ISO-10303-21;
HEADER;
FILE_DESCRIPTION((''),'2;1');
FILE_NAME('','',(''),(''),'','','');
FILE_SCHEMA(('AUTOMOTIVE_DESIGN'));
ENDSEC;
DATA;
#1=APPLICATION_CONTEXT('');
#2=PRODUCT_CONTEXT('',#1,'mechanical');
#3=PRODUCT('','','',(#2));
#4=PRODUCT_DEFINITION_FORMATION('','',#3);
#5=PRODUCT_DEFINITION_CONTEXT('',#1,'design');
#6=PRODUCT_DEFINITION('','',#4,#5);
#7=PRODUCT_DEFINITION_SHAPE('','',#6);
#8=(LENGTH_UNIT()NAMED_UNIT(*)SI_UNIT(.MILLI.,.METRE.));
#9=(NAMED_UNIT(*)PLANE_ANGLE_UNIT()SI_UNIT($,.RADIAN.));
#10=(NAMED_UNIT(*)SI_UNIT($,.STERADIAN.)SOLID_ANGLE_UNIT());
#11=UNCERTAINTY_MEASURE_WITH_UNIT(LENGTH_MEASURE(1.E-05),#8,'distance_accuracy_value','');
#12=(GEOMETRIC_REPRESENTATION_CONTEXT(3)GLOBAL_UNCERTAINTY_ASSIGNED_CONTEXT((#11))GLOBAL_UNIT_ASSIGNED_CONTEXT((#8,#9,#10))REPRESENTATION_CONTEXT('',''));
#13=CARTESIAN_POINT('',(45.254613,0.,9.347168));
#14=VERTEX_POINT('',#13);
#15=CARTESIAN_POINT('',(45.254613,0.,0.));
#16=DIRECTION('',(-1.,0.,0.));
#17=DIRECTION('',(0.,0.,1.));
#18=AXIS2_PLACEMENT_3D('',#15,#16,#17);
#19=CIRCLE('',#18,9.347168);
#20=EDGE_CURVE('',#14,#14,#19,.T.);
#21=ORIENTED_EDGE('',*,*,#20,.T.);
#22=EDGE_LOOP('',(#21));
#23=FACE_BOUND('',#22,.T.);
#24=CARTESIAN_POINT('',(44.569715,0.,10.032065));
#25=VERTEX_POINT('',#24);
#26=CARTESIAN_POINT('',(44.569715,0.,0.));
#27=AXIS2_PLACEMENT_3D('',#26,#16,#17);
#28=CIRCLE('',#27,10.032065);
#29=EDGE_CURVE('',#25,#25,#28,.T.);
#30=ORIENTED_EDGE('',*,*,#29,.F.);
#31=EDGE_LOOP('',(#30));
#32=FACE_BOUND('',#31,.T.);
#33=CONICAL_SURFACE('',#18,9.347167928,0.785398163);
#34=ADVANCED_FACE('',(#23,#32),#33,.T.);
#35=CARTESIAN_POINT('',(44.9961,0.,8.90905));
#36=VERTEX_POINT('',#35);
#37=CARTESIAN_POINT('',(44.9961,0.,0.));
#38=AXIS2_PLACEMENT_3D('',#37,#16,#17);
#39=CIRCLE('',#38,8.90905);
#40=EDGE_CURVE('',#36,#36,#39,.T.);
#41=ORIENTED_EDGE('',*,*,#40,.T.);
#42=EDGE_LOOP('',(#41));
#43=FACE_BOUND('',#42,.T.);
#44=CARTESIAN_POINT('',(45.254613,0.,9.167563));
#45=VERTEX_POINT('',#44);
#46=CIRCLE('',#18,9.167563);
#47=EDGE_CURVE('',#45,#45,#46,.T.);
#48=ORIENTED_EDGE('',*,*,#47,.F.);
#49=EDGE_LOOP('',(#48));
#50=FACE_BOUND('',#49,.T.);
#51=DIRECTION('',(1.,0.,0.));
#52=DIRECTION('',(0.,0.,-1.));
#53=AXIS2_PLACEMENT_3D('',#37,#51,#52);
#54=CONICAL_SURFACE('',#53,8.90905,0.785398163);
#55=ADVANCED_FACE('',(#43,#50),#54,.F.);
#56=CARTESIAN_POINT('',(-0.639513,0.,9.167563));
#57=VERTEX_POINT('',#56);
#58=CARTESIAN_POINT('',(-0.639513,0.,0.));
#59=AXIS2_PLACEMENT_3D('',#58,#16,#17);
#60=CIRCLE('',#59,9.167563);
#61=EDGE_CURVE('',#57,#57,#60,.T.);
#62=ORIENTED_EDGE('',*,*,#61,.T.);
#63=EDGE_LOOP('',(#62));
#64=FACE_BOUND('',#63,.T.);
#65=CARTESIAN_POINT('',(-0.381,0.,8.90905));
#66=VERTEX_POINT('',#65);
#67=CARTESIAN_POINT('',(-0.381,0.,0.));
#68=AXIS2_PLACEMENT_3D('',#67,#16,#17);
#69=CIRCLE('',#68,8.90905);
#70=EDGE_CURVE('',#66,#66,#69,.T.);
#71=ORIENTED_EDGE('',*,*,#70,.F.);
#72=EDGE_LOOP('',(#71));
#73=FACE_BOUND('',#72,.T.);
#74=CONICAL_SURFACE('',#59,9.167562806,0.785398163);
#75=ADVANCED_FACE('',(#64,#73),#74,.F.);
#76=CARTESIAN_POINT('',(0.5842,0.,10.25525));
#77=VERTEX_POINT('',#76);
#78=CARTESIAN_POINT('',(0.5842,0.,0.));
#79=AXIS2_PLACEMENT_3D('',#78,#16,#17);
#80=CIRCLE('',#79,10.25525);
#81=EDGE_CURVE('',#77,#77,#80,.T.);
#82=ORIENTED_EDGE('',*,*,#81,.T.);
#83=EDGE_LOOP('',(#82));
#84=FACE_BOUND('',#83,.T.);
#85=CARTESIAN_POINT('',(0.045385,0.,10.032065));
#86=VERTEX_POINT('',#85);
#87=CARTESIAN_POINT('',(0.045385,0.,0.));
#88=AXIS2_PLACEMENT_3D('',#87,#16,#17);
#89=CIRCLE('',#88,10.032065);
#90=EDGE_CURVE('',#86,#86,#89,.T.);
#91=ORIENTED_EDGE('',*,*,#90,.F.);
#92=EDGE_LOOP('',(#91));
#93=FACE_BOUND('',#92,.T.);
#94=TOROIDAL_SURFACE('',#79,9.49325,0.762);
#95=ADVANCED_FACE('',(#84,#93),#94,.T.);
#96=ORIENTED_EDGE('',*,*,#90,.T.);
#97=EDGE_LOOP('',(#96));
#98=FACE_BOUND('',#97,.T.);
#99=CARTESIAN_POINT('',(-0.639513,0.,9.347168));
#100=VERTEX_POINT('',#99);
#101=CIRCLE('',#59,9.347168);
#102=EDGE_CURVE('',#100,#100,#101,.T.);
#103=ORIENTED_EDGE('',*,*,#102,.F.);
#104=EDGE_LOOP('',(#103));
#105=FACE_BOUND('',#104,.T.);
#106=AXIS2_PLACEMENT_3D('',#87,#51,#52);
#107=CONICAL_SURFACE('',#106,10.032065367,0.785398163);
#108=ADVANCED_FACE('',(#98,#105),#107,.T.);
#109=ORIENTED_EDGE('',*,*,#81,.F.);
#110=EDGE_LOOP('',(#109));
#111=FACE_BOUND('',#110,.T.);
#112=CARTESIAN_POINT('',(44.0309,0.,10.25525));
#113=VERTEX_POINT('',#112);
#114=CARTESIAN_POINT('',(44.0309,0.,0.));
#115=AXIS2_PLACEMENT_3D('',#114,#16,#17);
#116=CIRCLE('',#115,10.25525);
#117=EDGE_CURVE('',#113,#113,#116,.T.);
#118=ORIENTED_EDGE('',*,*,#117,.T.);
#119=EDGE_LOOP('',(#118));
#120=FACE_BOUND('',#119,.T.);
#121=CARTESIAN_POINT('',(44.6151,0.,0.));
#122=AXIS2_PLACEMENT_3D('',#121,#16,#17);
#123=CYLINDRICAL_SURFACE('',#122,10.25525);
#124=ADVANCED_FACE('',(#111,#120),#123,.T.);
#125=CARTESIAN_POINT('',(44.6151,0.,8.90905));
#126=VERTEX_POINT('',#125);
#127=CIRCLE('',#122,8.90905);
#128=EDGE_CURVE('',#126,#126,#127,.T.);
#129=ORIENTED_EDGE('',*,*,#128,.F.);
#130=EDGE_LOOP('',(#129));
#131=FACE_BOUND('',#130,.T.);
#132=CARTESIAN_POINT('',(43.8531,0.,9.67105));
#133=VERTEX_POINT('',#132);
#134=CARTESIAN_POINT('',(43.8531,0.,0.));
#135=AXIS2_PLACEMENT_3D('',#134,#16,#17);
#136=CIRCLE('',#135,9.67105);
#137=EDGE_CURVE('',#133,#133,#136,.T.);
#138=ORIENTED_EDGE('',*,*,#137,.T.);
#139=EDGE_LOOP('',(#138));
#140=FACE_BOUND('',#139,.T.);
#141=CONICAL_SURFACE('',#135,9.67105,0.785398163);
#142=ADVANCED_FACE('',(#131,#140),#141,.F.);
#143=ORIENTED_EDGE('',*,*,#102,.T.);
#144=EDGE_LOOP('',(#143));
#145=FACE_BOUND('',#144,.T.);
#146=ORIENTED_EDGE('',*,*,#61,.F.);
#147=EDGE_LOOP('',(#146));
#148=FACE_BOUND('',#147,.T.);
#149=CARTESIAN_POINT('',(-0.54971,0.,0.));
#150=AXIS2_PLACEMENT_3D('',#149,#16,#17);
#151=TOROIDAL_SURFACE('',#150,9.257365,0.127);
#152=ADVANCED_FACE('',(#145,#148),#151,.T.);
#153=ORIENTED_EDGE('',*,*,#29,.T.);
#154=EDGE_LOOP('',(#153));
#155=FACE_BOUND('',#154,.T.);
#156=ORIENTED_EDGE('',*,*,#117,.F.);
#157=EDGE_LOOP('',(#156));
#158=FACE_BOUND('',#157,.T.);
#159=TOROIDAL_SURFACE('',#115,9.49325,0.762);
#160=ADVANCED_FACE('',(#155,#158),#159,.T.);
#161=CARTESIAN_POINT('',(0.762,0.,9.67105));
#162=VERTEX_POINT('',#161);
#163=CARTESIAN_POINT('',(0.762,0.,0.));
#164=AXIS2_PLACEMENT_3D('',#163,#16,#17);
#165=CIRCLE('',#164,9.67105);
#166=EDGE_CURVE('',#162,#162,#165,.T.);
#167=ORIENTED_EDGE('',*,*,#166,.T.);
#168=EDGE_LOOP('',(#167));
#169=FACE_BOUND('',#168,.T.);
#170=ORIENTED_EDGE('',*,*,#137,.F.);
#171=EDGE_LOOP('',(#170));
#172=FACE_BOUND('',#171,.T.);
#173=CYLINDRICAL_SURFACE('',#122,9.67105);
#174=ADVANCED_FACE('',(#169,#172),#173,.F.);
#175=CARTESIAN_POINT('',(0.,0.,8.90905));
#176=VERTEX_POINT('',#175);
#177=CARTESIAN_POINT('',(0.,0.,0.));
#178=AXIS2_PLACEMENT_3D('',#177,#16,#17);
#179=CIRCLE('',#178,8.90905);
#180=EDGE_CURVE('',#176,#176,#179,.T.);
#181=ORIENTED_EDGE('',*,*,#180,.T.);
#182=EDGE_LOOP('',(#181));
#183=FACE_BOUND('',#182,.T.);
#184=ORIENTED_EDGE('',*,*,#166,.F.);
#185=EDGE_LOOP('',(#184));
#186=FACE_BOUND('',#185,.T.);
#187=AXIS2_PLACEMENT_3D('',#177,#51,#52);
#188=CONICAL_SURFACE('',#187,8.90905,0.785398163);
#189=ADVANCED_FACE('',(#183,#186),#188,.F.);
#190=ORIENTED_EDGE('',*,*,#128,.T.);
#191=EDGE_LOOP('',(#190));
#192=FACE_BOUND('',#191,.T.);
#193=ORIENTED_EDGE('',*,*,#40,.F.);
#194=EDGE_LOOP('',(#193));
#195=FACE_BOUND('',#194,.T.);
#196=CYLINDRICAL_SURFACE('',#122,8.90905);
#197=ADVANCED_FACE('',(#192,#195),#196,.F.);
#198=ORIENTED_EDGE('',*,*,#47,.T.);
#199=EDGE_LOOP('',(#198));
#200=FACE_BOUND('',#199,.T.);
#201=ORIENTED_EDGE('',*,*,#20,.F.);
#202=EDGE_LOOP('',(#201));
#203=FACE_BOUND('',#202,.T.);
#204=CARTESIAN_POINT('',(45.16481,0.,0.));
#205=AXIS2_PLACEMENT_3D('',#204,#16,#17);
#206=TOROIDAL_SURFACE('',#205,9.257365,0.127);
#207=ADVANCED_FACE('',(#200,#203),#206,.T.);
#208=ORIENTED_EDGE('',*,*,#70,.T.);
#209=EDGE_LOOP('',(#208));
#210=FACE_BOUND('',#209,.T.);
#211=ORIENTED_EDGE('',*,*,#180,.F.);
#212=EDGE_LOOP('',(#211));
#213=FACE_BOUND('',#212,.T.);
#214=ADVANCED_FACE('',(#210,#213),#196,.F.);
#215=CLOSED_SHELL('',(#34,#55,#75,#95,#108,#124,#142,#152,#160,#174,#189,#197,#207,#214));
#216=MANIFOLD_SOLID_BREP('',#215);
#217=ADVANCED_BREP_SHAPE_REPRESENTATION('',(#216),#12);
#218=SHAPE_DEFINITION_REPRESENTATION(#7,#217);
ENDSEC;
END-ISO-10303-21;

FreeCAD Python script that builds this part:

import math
import FreeCAD as App
import Part
import Sketcher
from FreeCAD import Vector
Q = App.Units.Quantity

doc = App.newDocument("Part")
body = doc.addObject("PartDesign::Body", "Body")

# Sketch on XY plane
sketch1 = doc.addObject("Sketcher::SketchObject", "Sketch")
body.addObject(sketch1)
sketch1.AttachmentSupport = (doc.XY_Plane, [""])
sketch1.MapMode = "FlatFace"
sketch1.addGeometry(Part.LineSegment(Vector(-0.639513, 9.167563, 0), Vector(-0.381, 8.90905, 0)), False)
sketch1.addGeometry(Part.LineSegment(Vector(-0.381, 8.90905, 0), Vector(0, 8.90905, 0)), False)
sketch1.addGeometry(Part.LineSegment(Vector(0, 8.90905, 0), Vector(0.762, 9.67105, 0)), False)
sketch1.addGeometry(Part.LineSegment(Vector(0.762, 9.67105, 0), Vector(43.8531, 9.67105, 0)), False)
sketch1.addGeometry(Part.LineSegment(Vector(43.8531, 9.67105, 0), Vector(44.6151, 8.90905, 0)), False)
sketch1.addGeometry(Part.LineSegment(Vector(44.6151, 8.90905, 0), Vector(44.9961, 8.90905, 0)), False)
sketch1.addGeometry(Part.LineSegment(Vector(44.9961, 8.90905, 0), Vector(45.254613, 9.167563, 0)), False)
sketch1.addGeometry(Part.ArcOfCircle(Part.Circle(Vector(45.16481, 9.257365, 0), Vector(0, 0, 1), 0.127), math.radians(-45), math.radians(45)), False)
sketch1.addGeometry(Part.LineSegment(Vector(45.254613, 9.347168, 0), Vector(44.569715, 10.032065, 0)), False)
sketch1.addGeometry(Part.ArcOfCircle(Part.Circle(Vector(44.0309, 9.49325, 0), Vector(0, 0, 1), 0.762), math.radians(45), math.radians(90)), False)
sketch1.addGeometry(Part.LineSegment(Vector(44.0309, 10.25525, 0), Vector(0.5842, 10.25525, 0)), False)
sketch1.addGeometry(Part.ArcOfCircle(Part.Circle(Vector(0.5842, 9.49325, 0), Vector(0, 0, 1), 0.762), math.radians(90), math.radians(135)), False)
sketch1.addGeometry(Part.LineSegment(Vector(0.045385, 10.032065, 0), Vector(-0.639513, 9.347168, 0)), False)
sketch1.addGeometry(Part.ArcOfCircle(Part.Circle(Vector(-0.54971, 9.257365, 0), Vector(0, 0, 1), 0.127), math.radians(135), math.radians(225)), False)
sketch1.addConstraint(Sketcher.Constraint("Coincident", 0, 2, 1, 1))
sketch1.addConstraint(Sketcher.Constraint("Coincident", 1, 2, 2, 1))
sketch1.addConstraint(Sketcher.Constraint("Coincident", 2, 2, 3, 1))
sketch1.addConstraint(Sketcher.Constraint("Coincident", 3, 2, 4, 1))
sketch1.addConstraint(Sketcher.Constraint("Coincident", 4, 2, 5, 1))
sketch1.addConstraint(Sketcher.Constraint("Coincident", 5, 2, 6, 1))
sketch1.addConstraint(Sketcher.Constraint("Tangent", 6, 2, 7, 1))
sketch1.addConstraint(Sketcher.Constraint("Tangent", 7, 2, 8, 1))
sketch1.addConstraint(Sketcher.Constraint("Tangent", 8, 2, 9, 1))
sketch1.addConstraint(Sketcher.Constraint("Tangent", 9, 2, 10, 1))
sketch1.addConstraint(Sketcher.Constraint("Tangent", 10, 2, 11, 1))
sketch1.addConstraint(Sketcher.Constraint("Tangent", 11, 2, 12, 1))
sketch1.addConstraint(Sketcher.Constraint("Tangent", 12, 2, 13, 1))
sketch1.addConstraint(Sketcher.Constraint("Tangent", 13, 2, 0, 1))
sketch1.addConstraint(Sketcher.Constraint("Horizontal", 1))
sketch1.addConstraint(Sketcher.Constraint("Horizontal", 3))
sketch1.addConstraint(Sketcher.Constraint("Horizontal", 5))
sketch1.addConstraint(Sketcher.Constraint("Horizontal", 10))
sketch1.addConstraint(Sketcher.Constraint("Equal", 9, 11))
sketch1.addConstraint(Sketcher.Constraint("Equal", 7, 13))
sketch1.addConstraint(Sketcher.Constraint("PointOnObject", 1, 2, -2))
sketch1.addConstraint(Sketcher.Constraint("Perpendicular", 0, 2))
sketch1.addConstraint(Sketcher.Constraint("Perpendicular", 2, 4))
sketch1.addConstraint(Sketcher.Constraint("Perpendicular", 4, 6))
sketch1.addConstraint(Sketcher.Constraint("Perpendicular", 6, 8))
sketch1.addConstraint(Sketcher.Constraint("Perpendicular", 8, 12))
sketch1.addConstraint(Sketcher.Constraint("Horizontal", 7, 3, 13, 3))
sketch1.addConstraint(Sketcher.Constraint("Horizontal", 1, 2, 4, 2))
sketch1.addConstraint(Sketcher.Constraint("Horizontal", 8, 2, 11, 2))
sketch1.addConstraint(Sketcher.Constraint("Equal", 1, 5))
sketch1.addConstraint(Sketcher.Constraint("Radius", 9, Q("0.03 in")))
sketch1.addConstraint(Sketcher.Constraint("Radius", 7, Q("0.005 in")))
sketch1.addConstraint(Sketcher.Constraint("DistanceX", 1, 1, 1, 2, Q("0.015 in")))
sketch1.addConstraint(Sketcher.Constraint("DistanceX", -1, 1, 2, 2, Q("0.03 in")))
sketch1.addConstraint(Sketcher.Constraint("DistanceX", 3, 1, 3, 2, Q("1.6965 in")))
sketch1.addConstraint(Sketcher.Constraint("DistanceX", 10, 2, 10, 1, Q("1.7105 in")))
sketch1.addConstraint(Sketcher.Constraint("DistanceY", 0, 2, 11, 3, Q("0.023 in")))
sketch1.addConstraint(Sketcher.Constraint("DistanceY", -1, 1, 9, 3, Q("9.49325 mm")))
revolution = doc.addObject("PartDesign::Revolution", "Revolution")
body.addObject(revolution)
revolution.Profile = sketch1
revolution.ReferenceAxis = (sketch1, ["H_Axis"])
revolution.Angle = 360

doc.recompute()
